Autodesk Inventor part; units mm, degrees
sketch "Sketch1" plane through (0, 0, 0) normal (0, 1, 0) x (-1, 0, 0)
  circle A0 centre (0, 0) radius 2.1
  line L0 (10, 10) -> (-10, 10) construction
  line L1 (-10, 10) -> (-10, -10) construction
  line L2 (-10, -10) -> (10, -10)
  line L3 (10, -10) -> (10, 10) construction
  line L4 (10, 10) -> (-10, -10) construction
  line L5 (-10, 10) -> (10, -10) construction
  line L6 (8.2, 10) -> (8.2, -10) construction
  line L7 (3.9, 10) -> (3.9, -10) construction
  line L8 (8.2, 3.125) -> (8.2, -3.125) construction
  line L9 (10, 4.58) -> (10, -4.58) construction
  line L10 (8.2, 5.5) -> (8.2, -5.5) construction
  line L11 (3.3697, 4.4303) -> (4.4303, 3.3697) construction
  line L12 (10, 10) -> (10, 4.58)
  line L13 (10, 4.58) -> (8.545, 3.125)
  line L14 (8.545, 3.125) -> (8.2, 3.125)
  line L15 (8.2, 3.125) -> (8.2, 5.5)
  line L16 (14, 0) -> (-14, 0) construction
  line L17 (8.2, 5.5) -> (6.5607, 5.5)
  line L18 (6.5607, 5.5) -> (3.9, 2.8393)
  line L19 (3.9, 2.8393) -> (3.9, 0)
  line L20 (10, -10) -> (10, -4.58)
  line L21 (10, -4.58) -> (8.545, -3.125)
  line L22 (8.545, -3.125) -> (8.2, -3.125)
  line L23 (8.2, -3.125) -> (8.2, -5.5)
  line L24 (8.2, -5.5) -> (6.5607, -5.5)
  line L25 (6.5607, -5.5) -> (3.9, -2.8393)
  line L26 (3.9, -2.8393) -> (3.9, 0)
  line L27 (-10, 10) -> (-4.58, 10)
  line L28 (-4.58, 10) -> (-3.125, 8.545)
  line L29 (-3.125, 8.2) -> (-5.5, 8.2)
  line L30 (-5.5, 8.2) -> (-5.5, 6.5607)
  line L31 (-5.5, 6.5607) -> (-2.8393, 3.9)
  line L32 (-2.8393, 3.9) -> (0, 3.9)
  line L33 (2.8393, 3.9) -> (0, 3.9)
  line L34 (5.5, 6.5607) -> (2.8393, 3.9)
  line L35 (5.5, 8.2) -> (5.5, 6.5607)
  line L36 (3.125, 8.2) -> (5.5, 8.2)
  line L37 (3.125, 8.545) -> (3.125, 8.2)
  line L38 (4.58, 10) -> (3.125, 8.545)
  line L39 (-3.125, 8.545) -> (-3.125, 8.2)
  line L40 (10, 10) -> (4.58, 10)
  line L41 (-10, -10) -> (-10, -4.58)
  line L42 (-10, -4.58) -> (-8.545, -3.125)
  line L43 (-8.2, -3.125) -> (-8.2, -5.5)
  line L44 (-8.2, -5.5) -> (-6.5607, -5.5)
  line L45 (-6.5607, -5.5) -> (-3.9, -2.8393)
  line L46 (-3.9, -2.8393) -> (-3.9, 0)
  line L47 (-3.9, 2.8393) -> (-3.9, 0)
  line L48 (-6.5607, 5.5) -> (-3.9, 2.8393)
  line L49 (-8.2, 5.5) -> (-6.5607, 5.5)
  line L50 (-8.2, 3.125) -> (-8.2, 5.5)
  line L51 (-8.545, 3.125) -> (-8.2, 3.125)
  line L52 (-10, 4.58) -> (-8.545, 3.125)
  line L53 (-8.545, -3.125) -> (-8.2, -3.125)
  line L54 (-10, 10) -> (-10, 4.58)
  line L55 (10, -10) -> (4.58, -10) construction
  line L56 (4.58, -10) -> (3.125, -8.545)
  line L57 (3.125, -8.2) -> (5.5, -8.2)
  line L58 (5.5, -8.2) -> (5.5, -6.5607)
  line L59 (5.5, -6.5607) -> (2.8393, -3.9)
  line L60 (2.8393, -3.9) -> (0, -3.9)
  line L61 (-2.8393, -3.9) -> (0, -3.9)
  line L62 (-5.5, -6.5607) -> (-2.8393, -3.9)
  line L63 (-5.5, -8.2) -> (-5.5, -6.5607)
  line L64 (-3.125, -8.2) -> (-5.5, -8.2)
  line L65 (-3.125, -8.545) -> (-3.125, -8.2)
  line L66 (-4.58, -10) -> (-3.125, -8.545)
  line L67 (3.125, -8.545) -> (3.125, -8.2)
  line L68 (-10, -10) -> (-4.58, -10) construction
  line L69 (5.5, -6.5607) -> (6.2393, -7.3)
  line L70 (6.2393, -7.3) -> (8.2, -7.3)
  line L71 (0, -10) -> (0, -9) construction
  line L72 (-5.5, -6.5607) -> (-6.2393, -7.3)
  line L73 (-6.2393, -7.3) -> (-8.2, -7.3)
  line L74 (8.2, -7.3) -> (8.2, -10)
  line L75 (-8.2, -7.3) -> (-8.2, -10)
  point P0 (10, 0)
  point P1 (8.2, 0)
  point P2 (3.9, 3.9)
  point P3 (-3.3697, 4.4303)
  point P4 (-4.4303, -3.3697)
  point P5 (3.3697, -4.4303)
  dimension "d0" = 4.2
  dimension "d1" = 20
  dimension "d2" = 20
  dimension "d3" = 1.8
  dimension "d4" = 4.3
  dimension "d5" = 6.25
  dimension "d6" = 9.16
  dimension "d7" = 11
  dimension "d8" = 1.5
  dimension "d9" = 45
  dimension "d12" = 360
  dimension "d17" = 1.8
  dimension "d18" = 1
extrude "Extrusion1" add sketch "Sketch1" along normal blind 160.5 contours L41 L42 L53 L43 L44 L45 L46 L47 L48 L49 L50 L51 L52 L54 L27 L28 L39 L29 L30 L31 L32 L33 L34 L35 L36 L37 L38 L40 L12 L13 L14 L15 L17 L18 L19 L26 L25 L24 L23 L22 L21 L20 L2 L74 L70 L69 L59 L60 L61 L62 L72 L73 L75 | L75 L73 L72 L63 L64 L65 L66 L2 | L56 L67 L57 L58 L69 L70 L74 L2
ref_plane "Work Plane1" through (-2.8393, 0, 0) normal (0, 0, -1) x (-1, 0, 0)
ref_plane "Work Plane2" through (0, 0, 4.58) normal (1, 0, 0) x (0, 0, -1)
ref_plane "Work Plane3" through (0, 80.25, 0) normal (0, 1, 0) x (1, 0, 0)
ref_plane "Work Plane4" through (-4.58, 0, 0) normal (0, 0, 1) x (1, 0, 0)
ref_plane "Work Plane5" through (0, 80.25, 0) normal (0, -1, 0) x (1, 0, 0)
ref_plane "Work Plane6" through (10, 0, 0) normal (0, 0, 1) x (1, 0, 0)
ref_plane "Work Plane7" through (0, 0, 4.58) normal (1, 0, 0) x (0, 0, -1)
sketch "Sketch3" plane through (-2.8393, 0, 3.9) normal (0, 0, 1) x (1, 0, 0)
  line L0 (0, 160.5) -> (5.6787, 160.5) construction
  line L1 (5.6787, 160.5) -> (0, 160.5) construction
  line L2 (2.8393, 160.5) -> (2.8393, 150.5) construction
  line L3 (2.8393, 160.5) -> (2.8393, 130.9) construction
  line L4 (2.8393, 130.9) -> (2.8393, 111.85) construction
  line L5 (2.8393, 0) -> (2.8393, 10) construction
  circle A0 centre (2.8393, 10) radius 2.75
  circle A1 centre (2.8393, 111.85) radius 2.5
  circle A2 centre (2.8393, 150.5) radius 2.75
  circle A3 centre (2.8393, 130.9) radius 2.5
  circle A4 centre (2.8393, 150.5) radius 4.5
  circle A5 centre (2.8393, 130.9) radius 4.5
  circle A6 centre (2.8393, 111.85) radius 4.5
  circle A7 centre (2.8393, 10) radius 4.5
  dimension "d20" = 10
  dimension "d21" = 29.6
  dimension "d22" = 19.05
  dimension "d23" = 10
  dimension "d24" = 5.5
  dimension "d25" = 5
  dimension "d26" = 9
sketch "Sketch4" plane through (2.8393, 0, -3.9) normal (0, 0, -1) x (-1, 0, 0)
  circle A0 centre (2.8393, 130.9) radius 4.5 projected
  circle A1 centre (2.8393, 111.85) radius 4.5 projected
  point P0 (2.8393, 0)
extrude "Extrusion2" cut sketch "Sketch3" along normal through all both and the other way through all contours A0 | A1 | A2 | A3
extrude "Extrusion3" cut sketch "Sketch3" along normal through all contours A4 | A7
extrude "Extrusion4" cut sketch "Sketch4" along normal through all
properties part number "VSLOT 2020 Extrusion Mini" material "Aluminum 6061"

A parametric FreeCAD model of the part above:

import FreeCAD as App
import Part
import Sketcher

V = App.Vector

doc = App.newDocument("Part")
body = doc.addObject("PartDesign::Body", "Body")

sketch1 = body.newObject("Sketcher::SketchObject", "Sketch")
sketch1.AttachmentSupport = (doc.getObject("XZ_Plane"), [""])
sketch1.MapMode = "FlatFace"
sketch1.addGeometry([
    Part.LineSegment(V(10, -4.58, 0), V(10, -10, 0)),
    Part.LineSegment(V(10, -10, 0), V(4.58, -10, 0)),
    Part.LineSegment(V(4.58, -10, 0), V(3.12, -8.54, 0)),
    Part.LineSegment(V(3.12, -8.54, 0), V(3.12, -8.2, 0)),
    Part.LineSegment(V(3.12, -8.2, 0), V(5.5, -8.2, 0)),
    Part.LineSegment(V(5.5, -8.2, 0), V(5.5, -6.56, 0)),
    Part.LineSegment(V(5.5, -6.56, 0), V(2.84, -3.9, 0)),
    Part.LineSegment(V(2.84, -3.9, 0), V(-2.84, -3.9, 0)),
    Part.LineSegment(V(-2.84, -3.9, 0), V(-5.5, -6.56, 0)),
    Part.LineSegment(V(-5.5, -6.56, 0), V(-5.5, -8.2, 0)),
    Part.LineSegment(V(-5.5, -8.2, 0), V(-3.12, -8.2, 0)),
    Part.LineSegment(V(-3.12, -8.2, 0), V(-3.12, -8.54, 0)),
    Part.LineSegment(V(-3.12, -8.54, 0), V(-4.58, -10, 0)),
    Part.LineSegment(V(-4.58, -10, 0), V(-10, -10, 0)),
    Part.LineSegment(V(-10, -10, 0), V(-10, -4.58, 0)),
    Part.LineSegment(V(-10, -4.58, 0), V(-8.54, -3.12, 0)),
    Part.LineSegment(V(-8.54, -3.12, 0), V(-8.2, -3.12, 0)),
    Part.LineSegment(V(-8.2, -3.12, 0), V(-8.2, -5.5, 0)),
    Part.LineSegment(V(-8.2, -5.5, 0), V(-6.56, -5.5, 0)),
    Part.LineSegment(V(-6.56, -5.5, 0), V(-3.9, -2.84, 0)),
    Part.LineSegment(V(-3.9, -2.84, 0), V(-3.9, 2.84, 0)),
    Part.LineSegment(V(-3.9, 2.84, 0), V(-6.56, 5.5, 0)),
    Part.LineSegment(V(-6.56, 5.5, 0), V(-8.2, 5.5, 0)),
    Part.LineSegment(V(-8.2, 5.5, 0), V(-8.2, 3.12, 0)),
    Part.LineSegment(V(-8.2, 3.12, 0), V(-8.54, 3.12, 0)),
    Part.LineSegment(V(-8.54, 3.12, 0), V(-10, 4.58, 0)),
    Part.LineSegment(V(-10, 4.58, 0), V(-10, 10, 0)),
    Part.LineSegment(V(-10, 10, 0), V(-4.58, 10, 0)),
    Part.LineSegment(V(-4.58, 10, 0), V(-3.12, 8.54, 0)),
    Part.LineSegment(V(-3.12, 8.54, 0), V(-3.12, 8.2, 0)),
    Part.LineSegment(V(-3.12, 8.2, 0), V(-5.5, 8.2, 0)),
    Part.LineSegment(V(-5.5, 8.2, 0), V(-5.5, 6.56, 0)),
    Part.LineSegment(V(-5.5, 6.56, 0), V(-2.84, 3.9, 0)),
    Part.LineSegment(V(-2.84, 3.9, 0), V(2.84, 3.9, 0)),
    Part.LineSegment(V(2.84, 3.9, 0), V(5.5, 6.56, 0)),
    Part.LineSegment(V(5.5, 6.56, 0), V(5.5, 8.2, 0)),
    Part.LineSegment(V(5.5, 8.2, 0), V(3.12, 8.2, 0)),
    Part.LineSegment(V(3.12, 8.2, 0), V(3.12, 8.54, 0)),
    Part.LineSegment(V(3.12, 8.54, 0), V(4.58, 10, 0)),
    Part.LineSegment(V(4.58, 10, 0), V(10, 10, 0)),
    Part.LineSegment(V(10, 10, 0), V(10, 4.58, 0)),
    Part.LineSegment(V(10, 4.58, 0), V(8.54, 3.12, 0)),
    Part.LineSegment(V(8.54, 3.12, 0), V(8.2, 3.12, 0)),
    Part.LineSegment(V(8.2, 3.12, 0), V(8.2, 5.5, 0)),
    Part.LineSegment(V(8.2, 5.5, 0), V(6.56, 5.5, 0)),
    Part.LineSegment(V(6.56, 5.5, 0), V(3.9, 2.84, 0)),
    Part.LineSegment(V(3.9, 2.84, 0), V(3.9, -2.84, 0)),
    Part.LineSegment(V(3.9, -2.84, 0), V(6.56, -5.5, 0)),
    Part.LineSegment(V(6.56, -5.5, 0), V(8.2, -5.5, 0)),
    Part.LineSegment(V(8.2, -5.5, 0), V(8.2, -3.12, 0)),
    Part.LineSegment(V(8.2, -3.12, 0), V(8.54, -3.12, 0)),
    Part.LineSegment(V(8.54, -3.12, 0), V(10, -4.58, 0)),
    Part.Circle(V(0, 0, 0), V(0, 0, 1), 2.1),
], False)
sketch1.addConstraint([
    Sketcher.Constraint("Coincident", 0, 2, 1, 1),
    Sketcher.Constraint("Coincident", 1, 2, 2, 1),
    Sketcher.Constraint("Coincident", 2, 2, 3, 1),
    Sketcher.Constraint("Coincident", 3, 2, 4, 1),
    Sketcher.Constraint("Coincident", 4, 2, 5, 1),
    Sketcher.Constraint("Coincident", 5, 2, 6, 1),
    Sketcher.Constraint("Coincident", 6, 2, 7, 1),
    Sketcher.Constraint("Coincident", 7, 2, 8, 1),
    Sketcher.Constraint("Coincident", 8, 2, 9, 1),
    Sketcher.Constraint("Coincident", 9, 2, 10, 1),
    Sketcher.Constraint("Coincident", 10, 2, 11, 1),
    Sketcher.Constraint("Coincident", 11, 2, 12, 1),
    Sketcher.Constraint("Coincident", 12, 2, 13, 1),
    Sketcher.Constraint("Coincident", 13, 2, 14, 1),
    Sketcher.Constraint("Coincident", 14, 2, 15, 1),
    Sketcher.Constraint("Coincident", 15, 2, 16, 1),
    Sketcher.Constraint("Coincident", 16, 2, 17, 1),
    Sketcher.Constraint("Coincident", 17, 2, 18, 1),
    Sketcher.Constraint("Coincident", 18, 2, 19, 1),
    Sketcher.Constraint("Coincident", 19, 2, 20, 1),
    Sketcher.Constraint("Coincident", 20, 2, 21, 1),
    Sketcher.Constraint("Coincident", 21, 2, 22, 1),
    Sketcher.Constraint("Coincident", 22, 2, 23, 1),
    Sketcher.Constraint("Coincident", 23, 2, 24, 1),
    Sketcher.Constraint("Coincident", 24, 2, 25, 1),
    Sketcher.Constraint("Coincident", 25, 2, 26, 1),
    Sketcher.Constraint("Coincident", 26, 2, 27, 1),
    Sketcher.Constraint("Coincident", 27, 2, 28, 1),
    Sketcher.Constraint("Coincident", 28, 2, 29, 1),
    Sketcher.Constraint("Coincident", 29, 2, 30, 1),
    Sketcher.Constraint("Coincident", 30, 2, 31, 1),
    Sketcher.Constraint("Coincident", 31, 2, 32, 1),
    Sketcher.Constraint("Coincident", 32, 2, 33, 1),
    Sketcher.Constraint("Coincident", 33, 2, 34, 1),
    Sketcher.Constraint("Coincident", 34, 2, 35, 1),
    Sketcher.Constraint("Coincident", 35, 2, 36, 1),
    Sketcher.Constraint("Coincident", 36, 2, 37, 1),
    Sketcher.Constraint("Coincident", 37, 2, 38, 1),
    Sketcher.Constraint("Coincident", 38, 2, 39, 1),
    Sketcher.Constraint("Coincident", 39, 2, 40, 1),
    Sketcher.Constraint("Coincident", 40, 2, 41, 1),
    Sketcher.Constraint("Coincident", 41, 2, 42, 1),
    Sketcher.Constraint("Coincident", 42, 2, 43, 1),
    Sketcher.Constraint("Coincident", 43, 2, 44, 1),
    Sketcher.Constraint("Coincident", 44, 2, 45, 1),
    Sketcher.Constraint("Coincident", 45, 2, 46, 1),
    Sketcher.Constraint("Coincident", 46, 2, 47, 1),
    Sketcher.Constraint("Coincident", 47, 2, 48, 1),
    Sketcher.Constraint("Coincident", 48, 2, 49, 1),
    Sketcher.Constraint("Coincident", 49, 2, 50, 1),
    Sketcher.Constraint("Coincident", 50, 2, 51, 1),
    Sketcher.Constraint("Coincident", 51, 2, 0, 1),
    Sketcher.Constraint("Vertical", 0),
    Sketcher.Constraint("Horizontal", 1),
    Sketcher.Constraint("Vertical", 3),
    Sketcher.Constraint("Horizontal", 4),
    Sketcher.Constraint("Vertical", 5),
    Sketcher.Constraint("Horizontal", 7),
    Sketcher.Constraint("Vertical", 9),
    Sketcher.Constraint("Horizontal", 10),
    Sketcher.Constraint("Vertical", 11),
    Sketcher.Constraint("Horizontal", 13),
    Sketcher.Constraint("Vertical", 14),
    Sketcher.Constraint("Horizontal", 16),
    Sketcher.Constraint("Vertical", 17),
    Sketcher.Constraint("Horizontal", 18),
    Sketcher.Constraint("Vertical", 20),
    Sketcher.Constraint("Horizontal", 22),
    Sketcher.Constraint("Vertical", 23),
    Sketcher.Constraint("Horizontal", 24),
    Sketcher.Constraint("Vertical", 26),
    Sketcher.Constraint("Horizontal", 27),
    Sketcher.Constraint("Vertical", 29),
    Sketcher.Constraint("Horizontal", 30),
    Sketcher.Constraint("Vertical", 31),
    Sketcher.Constraint("Horizontal", 33),
    Sketcher.Constraint("Vertical", 35),
    Sketcher.Constraint("Horizontal", 36),
    Sketcher.Constraint("Vertical", 37),
    Sketcher.Constraint("Horizontal", 39),
    Sketcher.Constraint("Vertical", 40),
    Sketcher.Constraint("Horizontal", 42),
    Sketcher.Constraint("Vertical", 43),
    Sketcher.Constraint("Horizontal", 44),
    Sketcher.Constraint("Vertical", 46),
    Sketcher.Constraint("Horizontal", 48),
    Sketcher.Constraint("Vertical", 49),
    Sketcher.Constraint("Horizontal", 50),
    Sketcher.Constraint("Coincident", 52, 3, -1, 1),
    Sketcher.Constraint("Symmetric", 0, 2, 26, 2, -1, 1),
    Sketcher.Constraint("Symmetric", 2, 2, 28, 2, -1, 1),
    Sketcher.Constraint("Symmetric", 4, 2, 30, 2, -1, 1),
    Sketcher.Constraint("Symmetric", 6, 2, 32, 2, -1, 1),
    Sketcher.Constraint("Symmetric", 8, 2, 34, 2, -1, 1),
    Sketcher.Constraint("Symmetric", 10, 2, 36, 2, -1, 1),
    Sketcher.Constraint("Symmetric", 12, 2, 38, 2, -1, 1),
    Sketcher.Constraint("Symmetric", 14, 2, 40, 2, -1, 1),
    Sketcher.Constraint("Symmetric", 15, 2, 41, 2, -1, 1),
    Sketcher.Constraint("Symmetric", 17, 2, 43, 2, -1, 1),
    Sketcher.Constraint("Symmetric", 19, 2, 45, 2, -1, 1),
    Sketcher.Constraint("Symmetric", 21, 2, 47, 2, -1, 1),
    Sketcher.Constraint("Symmetric", 23, 2, 49, 2, -1, 1),
    Sketcher.Constraint("Symmetric", 5, 2, 8, 2, -2),
    Sketcher.Constraint("Symmetric", 3, 2, 10, 2, -2),
    Sketcher.Constraint("Symmetric", 1, 2, 12, 2, -2),
    Sketcher.Constraint("Symmetric", 25, 2, 40, 2, -2),
    Sketcher.Constraint("Symmetric", 24, 2, 41, 2, -2),
    Sketcher.Constraint("Symmetric", 22, 2, 43, 2, -2),
    Sketcher.Constraint("Parallel", 2, 6),
    Sketcher.Constraint("Perpendicular", 6, 8),
    Sketcher.Constraint("Parallel", 8, 12),
    Sketcher.Constraint("Parallel", 12, 15),
    Sketcher.Constraint("Parallel", 15, 19),
    Sketcher.Constraint("Perpendicular", 19, 21),
    Sketcher.Constraint("Parallel", 21, 25),
    Sketcher.Constraint("Parallel", 25, 28),
    Sketcher.Constraint("Parallel", 28, 32),
    Sketcher.Constraint("Perpendicular", 32, 34),
    Sketcher.Constraint("Parallel", 34, 38),
    Sketcher.Constraint("Parallel", 41, 45),
    Sketcher.Constraint("Perpendicular", 45, 47),
    Sketcher.Constraint("Parallel", 47, 51),
    Sketcher.Constraint("Horizontal", 20, 2, 45, 2),
    Sketcher.Constraint("Horizontal", 14, 2, 51, 2),
    Sketcher.Constraint("Equal", 39, 0),
    Sketcher.Constraint("Equal", 50, 3),
    Sketcher.Constraint("Equal", 48, 5),
    Sketcher.Constraint("Equal", 36, 17),
    Sketcher.Constraint("Equal", 33, 20),
    Sketcher.Constraint("Equal", 12, 15),
    Sketcher.Constraint("Equal", 8, 19),
    Sketcher.Constraint("Diameter", 52, 4.2),
    Sketcher.Constraint("DistanceY", 1, 2, 3, 2, 1.8),
    Sketcher.Constraint("DistanceY", 3, 2, 6, 2, 4.3),
    Sketcher.Constraint("DistanceX", 10, 2, 3, 2, 6.25),
    Sketcher.Constraint("DistanceX", -1, 1, 0, 2, 10.0),
    Sketcher.Constraint("DistanceX", 1, 2, 1, 1, 5.42),
    Sketcher.Constraint("DistanceX", -1, 1, 4, 2, 5.5),
    Sketcher.Constraint("DistanceX", 7, 2, 7, 1, 5.6786),
])
pad1 = body.newObject("PartDesign::Pad", "Pad")
pad1.Profile = sketch1
pad1.Length = 160.5
pad1.Reversed = True

sketch2 = body.newObject("Sketcher::SketchObject", "Sketch001")
sketch2.AttachmentSupport = (doc.getObject("XY_Plane"), [""])
sketch2.MapMode = "FlatFace"
sketch2.AttachmentOffset = App.Placement(V(0, 0, 3.9), App.Rotation())
sketch2.addGeometry([
    Part.Circle(V(0, 10, 0), V(0, 0, 1), 2.8),
    Part.Circle(V(0, 111.8, 0), V(0, 0, 1), 2.5),
    Part.Circle(V(0, 150.5, 0), V(0, 0, 1), 2.8),
    Part.Circle(V(0, 130.9, 0), V(0, 0, 1), 2.5),
], False)
sketch2.addConstraint([
    Sketcher.Constraint("Equal", 0, 2),
    Sketcher.Constraint("Equal", 1, 3),
    Sketcher.Constraint("PointOnObject", 0, 3, -2),
    Sketcher.Constraint("PointOnObject", 1, 3, -2),
    Sketcher.Constraint("PointOnObject", 2, 3, -2),
    Sketcher.Constraint("PointOnObject", 3, 3, -2),
    Sketcher.Constraint("Diameter", 1, 5.0),
    Sketcher.Constraint("Diameter", 0, 5.5),
    Sketcher.Constraint("DistanceY", -1, 1, 0, 3, 10.0),
    Sketcher.Constraint("DistanceY", 1, 3, 3, 3, 19.05),
    Sketcher.Constraint("DistanceY", -1, 1, 2, 3, 150.5),
    Sketcher.Constraint("DistanceY", -1, 1, 3, 3, 130.9),
])
pocket1 = body.newObject("PartDesign::Pocket", "Pocket")
pocket1.Profile = sketch2
pocket1.Type = "ThroughAll"
pocket1.Midplane = True

sketch3 = body.newObject("Sketcher::SketchObject", "Sketch002")
sketch3.AttachmentSupport = (doc.getObject("XY_Plane"), [""])
sketch3.MapMode = "FlatFace"
sketch3.AttachmentOffset = App.Placement(V(0, 0, 3.9), App.Rotation())
sketch3.addGeometry([
    Part.Circle(V(0, 150.5, 0), V(0, 0, 1), 4.5),
    Part.Circle(V(0, 150.5, 0), V(0, 0, 1), 2.8),
    Part.Circle(V(0, 10, 0), V(0, 0, 1), 4.5),
    Part.Circle(V(0, 10, 0), V(0, 0, 1), 2.8),
], False)
sketch3.addConstraint([
    Sketcher.Constraint("Coincident", 1, 3, 0, 3),
    Sketcher.Constraint("Coincident", 3, 3, 2, 3),
    Sketcher.Constraint("Equal", 0, 2),
    Sketcher.Constraint("Equal", 1, 3),
    Sketcher.Constraint("PointOnObject", 0, 3, -2),
    Sketcher.Constraint("PointOnObject", 2, 3, -2),
    Sketcher.Constraint("Diameter", 0, 9.0),
    Sketcher.Constraint("Diameter", 1, 5.5),
    Sketcher.Constraint("DistanceY", -1, 1, 2, 3, 10.0),
    Sketcher.Constraint("DistanceY", -1, 1, 0, 3, 150.5),
])
pocket2 = body.newObject("PartDesign::Pocket", "Pocket001")
pocket2.Profile = sketch3
pocket2.Type = "ThroughAll"
pocket2.Reversed = True

sketch4 = body.newObject("Sketcher::SketchObject", "Sketch003")
sketch4.AttachmentSupport = (doc.getObject("XY_Plane"), [""])
sketch4.MapMode = "FlatFace"
sketch4.AttachmentOffset = App.Placement(V(0, 0, -3.9), App.Rotation())
sketch4.addGeometry([
    Part.Circle(V(0, 130.9, 0), V(0, 0, 1), 4.5),
    Part.Circle(V(0, 111.8, 0), V(0, 0, 1), 4.5),
], False)
sketch4.addConstraint([
    Sketcher.Constraint("Equal", 0, 1),
    Sketcher.Constraint("PointOnObject", 0, 3, -2),
    Sketcher.Constraint("PointOnObject", 1, 3, -2),
    Sketcher.Constraint("Diameter", 0, 9.0),
    Sketcher.Constraint("DistanceY", -1, 1, 0, 3, 130.9),
    Sketcher.Constraint("DistanceY", -1, 1, 1, 3, 111.85),
])
pocket3 = body.newObject("PartDesign::Pocket", "Pocket002")
pocket3.Profile = sketch4
pocket3.Type = "ThroughAll"

doc.recompute()
